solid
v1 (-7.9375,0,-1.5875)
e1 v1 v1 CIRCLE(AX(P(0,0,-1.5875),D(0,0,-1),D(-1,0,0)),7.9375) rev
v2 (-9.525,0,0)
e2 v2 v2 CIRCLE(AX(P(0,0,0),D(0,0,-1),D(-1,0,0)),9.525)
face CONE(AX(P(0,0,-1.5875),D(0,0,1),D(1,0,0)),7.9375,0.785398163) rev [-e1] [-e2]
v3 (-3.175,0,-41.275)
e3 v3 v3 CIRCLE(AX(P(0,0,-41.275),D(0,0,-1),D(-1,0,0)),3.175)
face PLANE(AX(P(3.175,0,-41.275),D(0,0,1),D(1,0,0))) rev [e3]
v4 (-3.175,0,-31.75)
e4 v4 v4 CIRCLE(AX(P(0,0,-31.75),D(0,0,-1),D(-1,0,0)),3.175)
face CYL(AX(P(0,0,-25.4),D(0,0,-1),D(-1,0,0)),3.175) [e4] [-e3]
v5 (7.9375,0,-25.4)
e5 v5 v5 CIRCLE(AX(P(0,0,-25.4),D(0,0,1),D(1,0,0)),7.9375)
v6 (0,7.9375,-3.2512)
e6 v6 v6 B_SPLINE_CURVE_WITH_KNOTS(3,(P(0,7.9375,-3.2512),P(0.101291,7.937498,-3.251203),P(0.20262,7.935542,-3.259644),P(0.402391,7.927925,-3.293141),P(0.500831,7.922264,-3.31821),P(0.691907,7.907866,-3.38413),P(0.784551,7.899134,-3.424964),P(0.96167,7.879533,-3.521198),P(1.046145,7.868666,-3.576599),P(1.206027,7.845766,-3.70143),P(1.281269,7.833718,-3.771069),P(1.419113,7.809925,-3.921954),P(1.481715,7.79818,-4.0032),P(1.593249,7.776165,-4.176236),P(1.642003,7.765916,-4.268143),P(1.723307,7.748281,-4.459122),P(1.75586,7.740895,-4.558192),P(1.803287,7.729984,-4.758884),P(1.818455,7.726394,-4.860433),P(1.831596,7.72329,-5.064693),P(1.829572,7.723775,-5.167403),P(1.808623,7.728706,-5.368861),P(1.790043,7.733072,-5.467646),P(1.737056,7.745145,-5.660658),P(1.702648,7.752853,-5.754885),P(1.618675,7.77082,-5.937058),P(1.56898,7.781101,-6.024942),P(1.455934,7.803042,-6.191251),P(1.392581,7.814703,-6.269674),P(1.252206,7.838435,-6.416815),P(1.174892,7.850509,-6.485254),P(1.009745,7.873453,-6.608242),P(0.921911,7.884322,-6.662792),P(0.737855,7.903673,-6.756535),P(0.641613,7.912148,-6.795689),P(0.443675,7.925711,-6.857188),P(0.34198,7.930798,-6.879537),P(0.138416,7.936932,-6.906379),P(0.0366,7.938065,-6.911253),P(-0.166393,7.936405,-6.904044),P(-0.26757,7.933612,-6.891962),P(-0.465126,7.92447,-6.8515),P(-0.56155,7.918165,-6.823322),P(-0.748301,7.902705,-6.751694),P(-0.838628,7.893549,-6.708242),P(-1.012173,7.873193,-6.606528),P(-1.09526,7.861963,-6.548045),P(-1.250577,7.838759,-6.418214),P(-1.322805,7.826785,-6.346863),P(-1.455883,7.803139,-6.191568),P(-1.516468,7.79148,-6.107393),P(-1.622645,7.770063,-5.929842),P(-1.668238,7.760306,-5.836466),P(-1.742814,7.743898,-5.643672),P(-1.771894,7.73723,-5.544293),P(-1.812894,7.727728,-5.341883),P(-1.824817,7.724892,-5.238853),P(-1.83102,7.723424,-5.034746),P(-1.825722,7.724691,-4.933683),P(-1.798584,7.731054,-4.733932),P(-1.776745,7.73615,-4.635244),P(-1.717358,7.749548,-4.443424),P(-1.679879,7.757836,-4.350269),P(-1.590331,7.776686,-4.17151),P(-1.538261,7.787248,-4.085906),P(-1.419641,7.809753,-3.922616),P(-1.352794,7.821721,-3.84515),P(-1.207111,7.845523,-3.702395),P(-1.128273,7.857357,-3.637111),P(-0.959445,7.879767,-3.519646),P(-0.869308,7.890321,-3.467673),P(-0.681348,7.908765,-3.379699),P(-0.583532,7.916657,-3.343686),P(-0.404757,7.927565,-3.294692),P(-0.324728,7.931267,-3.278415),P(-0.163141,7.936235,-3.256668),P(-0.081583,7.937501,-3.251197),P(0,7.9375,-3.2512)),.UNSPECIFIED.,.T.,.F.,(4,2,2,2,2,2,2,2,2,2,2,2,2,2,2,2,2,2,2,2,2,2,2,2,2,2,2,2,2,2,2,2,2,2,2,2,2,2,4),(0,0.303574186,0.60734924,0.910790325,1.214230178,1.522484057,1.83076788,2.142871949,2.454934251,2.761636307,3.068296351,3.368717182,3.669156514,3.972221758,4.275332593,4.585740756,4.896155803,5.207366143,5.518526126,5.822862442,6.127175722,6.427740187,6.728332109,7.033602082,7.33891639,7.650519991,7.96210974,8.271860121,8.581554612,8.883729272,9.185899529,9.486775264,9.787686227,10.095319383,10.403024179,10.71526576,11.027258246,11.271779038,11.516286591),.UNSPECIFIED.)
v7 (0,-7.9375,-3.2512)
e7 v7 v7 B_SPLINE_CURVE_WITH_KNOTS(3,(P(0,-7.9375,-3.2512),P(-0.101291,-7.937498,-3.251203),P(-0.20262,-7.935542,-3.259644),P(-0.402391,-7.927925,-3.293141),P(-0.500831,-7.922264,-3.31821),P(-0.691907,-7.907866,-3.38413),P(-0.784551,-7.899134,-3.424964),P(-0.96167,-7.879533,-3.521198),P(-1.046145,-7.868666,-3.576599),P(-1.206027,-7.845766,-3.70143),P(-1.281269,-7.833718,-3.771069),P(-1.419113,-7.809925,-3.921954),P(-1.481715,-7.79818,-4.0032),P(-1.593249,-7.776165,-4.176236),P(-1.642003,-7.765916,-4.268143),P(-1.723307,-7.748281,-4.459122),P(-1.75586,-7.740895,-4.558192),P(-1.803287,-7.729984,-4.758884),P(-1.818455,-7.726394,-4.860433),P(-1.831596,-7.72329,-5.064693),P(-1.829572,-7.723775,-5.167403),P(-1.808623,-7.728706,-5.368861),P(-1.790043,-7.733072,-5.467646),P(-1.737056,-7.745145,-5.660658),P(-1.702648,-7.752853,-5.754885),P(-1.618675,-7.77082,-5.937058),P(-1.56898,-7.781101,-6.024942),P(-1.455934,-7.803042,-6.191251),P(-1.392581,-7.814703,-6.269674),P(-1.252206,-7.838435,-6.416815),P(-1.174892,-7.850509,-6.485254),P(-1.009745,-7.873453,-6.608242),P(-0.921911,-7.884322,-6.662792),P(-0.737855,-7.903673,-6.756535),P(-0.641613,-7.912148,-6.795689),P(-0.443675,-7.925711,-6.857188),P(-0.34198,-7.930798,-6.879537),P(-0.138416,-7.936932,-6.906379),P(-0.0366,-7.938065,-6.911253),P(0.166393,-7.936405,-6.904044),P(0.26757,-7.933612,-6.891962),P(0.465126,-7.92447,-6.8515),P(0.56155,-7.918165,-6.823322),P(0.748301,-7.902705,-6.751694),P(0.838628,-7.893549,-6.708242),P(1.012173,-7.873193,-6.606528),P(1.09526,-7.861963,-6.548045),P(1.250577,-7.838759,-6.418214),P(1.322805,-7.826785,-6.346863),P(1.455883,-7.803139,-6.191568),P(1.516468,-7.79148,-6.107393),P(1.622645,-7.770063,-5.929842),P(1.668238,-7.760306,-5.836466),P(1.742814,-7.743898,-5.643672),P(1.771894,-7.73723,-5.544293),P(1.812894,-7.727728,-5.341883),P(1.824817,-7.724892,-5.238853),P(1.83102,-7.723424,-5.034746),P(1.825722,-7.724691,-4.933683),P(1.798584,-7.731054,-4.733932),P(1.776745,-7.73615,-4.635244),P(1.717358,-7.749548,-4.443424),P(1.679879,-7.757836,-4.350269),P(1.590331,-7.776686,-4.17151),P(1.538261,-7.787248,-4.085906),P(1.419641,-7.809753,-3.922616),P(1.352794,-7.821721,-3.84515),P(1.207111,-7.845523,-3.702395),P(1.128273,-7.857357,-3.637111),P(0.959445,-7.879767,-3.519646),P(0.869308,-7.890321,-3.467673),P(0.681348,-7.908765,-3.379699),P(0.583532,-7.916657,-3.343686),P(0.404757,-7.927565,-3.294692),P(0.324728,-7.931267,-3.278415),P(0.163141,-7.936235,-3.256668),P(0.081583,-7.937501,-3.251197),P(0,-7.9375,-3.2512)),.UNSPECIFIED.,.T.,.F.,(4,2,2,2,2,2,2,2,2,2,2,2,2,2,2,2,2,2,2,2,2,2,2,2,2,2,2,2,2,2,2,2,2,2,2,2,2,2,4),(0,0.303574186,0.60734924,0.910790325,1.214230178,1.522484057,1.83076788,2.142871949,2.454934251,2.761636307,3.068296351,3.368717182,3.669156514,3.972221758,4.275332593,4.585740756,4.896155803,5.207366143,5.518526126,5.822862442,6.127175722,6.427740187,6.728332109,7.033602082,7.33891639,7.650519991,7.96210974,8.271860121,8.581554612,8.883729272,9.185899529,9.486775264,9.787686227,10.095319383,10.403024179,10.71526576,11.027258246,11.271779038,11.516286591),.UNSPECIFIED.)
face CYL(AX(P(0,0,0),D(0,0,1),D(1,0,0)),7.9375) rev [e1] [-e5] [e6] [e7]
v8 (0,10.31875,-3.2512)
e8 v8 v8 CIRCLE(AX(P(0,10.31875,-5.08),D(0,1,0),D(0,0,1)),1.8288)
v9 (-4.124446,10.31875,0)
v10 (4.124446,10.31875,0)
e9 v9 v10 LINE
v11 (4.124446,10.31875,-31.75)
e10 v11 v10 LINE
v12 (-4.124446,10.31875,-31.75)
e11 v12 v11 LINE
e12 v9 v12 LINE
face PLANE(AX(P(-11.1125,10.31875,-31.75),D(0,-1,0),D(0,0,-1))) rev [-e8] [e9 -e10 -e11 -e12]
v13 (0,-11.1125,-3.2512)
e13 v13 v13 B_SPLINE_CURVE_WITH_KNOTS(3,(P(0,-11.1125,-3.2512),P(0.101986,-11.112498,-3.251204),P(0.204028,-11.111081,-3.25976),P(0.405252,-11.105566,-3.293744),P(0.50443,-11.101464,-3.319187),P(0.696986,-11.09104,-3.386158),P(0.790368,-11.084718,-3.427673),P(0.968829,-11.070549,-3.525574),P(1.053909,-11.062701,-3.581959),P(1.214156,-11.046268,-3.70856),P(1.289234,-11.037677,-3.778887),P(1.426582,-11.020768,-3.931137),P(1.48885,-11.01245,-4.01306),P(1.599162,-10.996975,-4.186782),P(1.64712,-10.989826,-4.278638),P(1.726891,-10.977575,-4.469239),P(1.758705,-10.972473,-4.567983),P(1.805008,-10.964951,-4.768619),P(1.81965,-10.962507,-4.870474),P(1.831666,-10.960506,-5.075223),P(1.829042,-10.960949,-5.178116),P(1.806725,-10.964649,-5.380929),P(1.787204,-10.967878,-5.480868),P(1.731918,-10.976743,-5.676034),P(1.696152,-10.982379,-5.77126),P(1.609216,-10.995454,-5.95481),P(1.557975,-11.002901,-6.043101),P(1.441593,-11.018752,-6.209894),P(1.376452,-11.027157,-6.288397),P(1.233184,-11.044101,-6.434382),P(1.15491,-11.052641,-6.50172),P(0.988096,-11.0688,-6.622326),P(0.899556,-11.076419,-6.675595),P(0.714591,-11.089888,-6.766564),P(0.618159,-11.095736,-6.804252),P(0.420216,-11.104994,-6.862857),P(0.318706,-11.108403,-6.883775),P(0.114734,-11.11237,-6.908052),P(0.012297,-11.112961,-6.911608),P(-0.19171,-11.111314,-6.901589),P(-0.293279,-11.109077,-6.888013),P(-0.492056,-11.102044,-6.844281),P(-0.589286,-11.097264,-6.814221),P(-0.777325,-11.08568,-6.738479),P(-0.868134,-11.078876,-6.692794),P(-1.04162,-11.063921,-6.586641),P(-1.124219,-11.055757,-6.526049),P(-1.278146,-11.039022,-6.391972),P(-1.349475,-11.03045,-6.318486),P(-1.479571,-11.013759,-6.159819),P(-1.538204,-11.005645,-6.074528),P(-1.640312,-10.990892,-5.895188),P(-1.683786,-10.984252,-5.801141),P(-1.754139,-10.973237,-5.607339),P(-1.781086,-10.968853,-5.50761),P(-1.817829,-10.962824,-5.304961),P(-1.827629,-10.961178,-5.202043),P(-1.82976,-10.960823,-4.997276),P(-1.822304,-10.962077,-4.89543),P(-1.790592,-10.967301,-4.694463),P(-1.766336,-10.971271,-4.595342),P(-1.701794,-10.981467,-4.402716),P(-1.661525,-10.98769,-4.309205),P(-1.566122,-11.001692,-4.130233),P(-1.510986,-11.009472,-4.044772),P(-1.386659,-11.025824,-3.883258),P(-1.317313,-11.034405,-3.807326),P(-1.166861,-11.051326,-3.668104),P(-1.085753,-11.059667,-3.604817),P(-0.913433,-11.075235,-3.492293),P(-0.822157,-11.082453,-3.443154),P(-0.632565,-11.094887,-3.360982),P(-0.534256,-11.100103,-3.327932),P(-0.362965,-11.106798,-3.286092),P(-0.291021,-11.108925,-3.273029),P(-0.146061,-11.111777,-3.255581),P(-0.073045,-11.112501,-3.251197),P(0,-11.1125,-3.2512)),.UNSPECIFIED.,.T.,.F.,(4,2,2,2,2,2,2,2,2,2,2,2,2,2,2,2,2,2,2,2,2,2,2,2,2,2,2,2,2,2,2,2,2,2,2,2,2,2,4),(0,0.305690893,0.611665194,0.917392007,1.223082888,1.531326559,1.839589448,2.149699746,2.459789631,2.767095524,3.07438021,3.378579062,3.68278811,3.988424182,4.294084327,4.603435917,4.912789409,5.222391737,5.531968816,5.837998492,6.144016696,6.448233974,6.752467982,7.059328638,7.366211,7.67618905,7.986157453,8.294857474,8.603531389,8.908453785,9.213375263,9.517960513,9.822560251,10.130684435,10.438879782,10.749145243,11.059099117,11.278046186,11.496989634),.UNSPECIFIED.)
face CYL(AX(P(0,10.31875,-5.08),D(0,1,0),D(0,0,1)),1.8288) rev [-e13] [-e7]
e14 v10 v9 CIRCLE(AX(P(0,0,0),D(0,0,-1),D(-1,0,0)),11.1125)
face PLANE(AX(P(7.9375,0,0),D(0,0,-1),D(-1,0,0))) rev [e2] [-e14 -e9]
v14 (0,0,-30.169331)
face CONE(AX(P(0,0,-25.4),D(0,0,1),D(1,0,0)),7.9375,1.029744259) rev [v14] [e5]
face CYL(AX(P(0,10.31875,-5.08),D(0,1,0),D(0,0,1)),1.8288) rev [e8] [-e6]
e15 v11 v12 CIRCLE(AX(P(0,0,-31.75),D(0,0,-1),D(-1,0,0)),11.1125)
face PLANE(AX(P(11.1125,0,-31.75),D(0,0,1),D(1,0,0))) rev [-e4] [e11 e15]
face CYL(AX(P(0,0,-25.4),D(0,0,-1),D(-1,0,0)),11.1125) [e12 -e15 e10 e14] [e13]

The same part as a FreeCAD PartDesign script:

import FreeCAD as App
import Part
import Sketcher

V = App.Vector
Q = App.Units.Quantity


def edges_at(feature, points):
    """Names of the edges that pass closest to the given points."""
    edges = feature.Shape.Edges
    near = lambda p: min(range(len(edges)), key=lambda i: edges[i].distToShape(Part.Vertex(*p))[0])
    return sorted({f"Edge{near(p) + 1}" for p in points})


def add_polygon(sketch, points):
    """Adds a closed chain of lines whose ends are joined by coincident constraints."""
    first, n = sketch.GeometryCount, len(points)
    for a, b in zip(points, points[1:] + points[:1]):
        sketch.addGeometry(Part.LineSegment(App.Vector(*a, 0), App.Vector(*b, 0)), False)
    for i in range(n):
        sketch.addConstraint(Sketcher.Constraint("Coincident", first + i, 2, first + (i + 1) % n, 1))

doc = App.newDocument("Part")
body = doc.addObject("PartDesign::Body", "Body")

# Sketch on XZ plane
sketch1 = doc.addObject("Sketcher::SketchObject", "Sketch")
body.addObject(sketch1)
sketch1.AttachmentSupport = (doc.XZ_Plane, [""])
sketch1.MapMode = "FlatFace"
add_polygon(sketch1, [(0, 0), (11.1, 0), (11.1, -31.8), (3.2, -31.8), (3.2, -41.3), (0, -41.3)])  # lines 0-5
sketch1.addConstraint([
    Sketcher.Constraint("Horizontal", 0),
    Sketcher.Constraint("Vertical", 1),
    Sketcher.Constraint("Horizontal", 2),
    Sketcher.Constraint("Vertical", 3),
    Sketcher.Constraint("Horizontal", 4),
    Sketcher.Constraint("Vertical", 5),
    Sketcher.Constraint("Coincident", 5, 2, -1, 1),
    Sketcher.Constraint("DistanceY", 1, 2, 1, 1, Q("1.25 in")),
    Sketcher.Constraint("DistanceX", 0, 1, 0, 2, Q("0.4375 in")),
    Sketcher.Constraint("DistanceX", 2, 2, 2, 1, Q("0.3125 in")),
    Sketcher.Constraint("DistanceY", 3, 2, 3, 1, Q("0.375 in")),
])
revolution = doc.addObject("PartDesign::Revolution", "Revolution")
body.addObject(revolution)
revolution.Profile = sketch1
revolution.ReferenceAxis = (sketch1, ["V_Axis"])
revolution.Angle = 360

# Sketch on XY plane
sketch2 = doc.addObject("Sketcher::SketchObject", "Sketch001")
body.addObject(sketch2)
sketch2.AttachmentSupport = (doc.XY_Plane, [""])
sketch2.MapMode = "FlatFace"
sketch2.addGeometry(Part.Circle(V(0, 0, 0), V(0, 0, 1), 8), False)
sketch2.addConstraint([
    Sketcher.Constraint("Coincident", 0, 3, -1, 1),
    Sketcher.Constraint("Diameter", 0, Q("0.625 in")),
])
doc.recompute()
hole = doc.addObject("PartDesign::Hole", "Hole")
body.addObject(hole)
hole.Profile = sketch2
hole.ThreadType = "None"
hole.Diameter = Q("0.625 in")
hole.DepthType = "Dimension"
hole.Depth = Q("1 in")
hole.DrillPoint = "Angled"
hole.DrillPointAngle = 118

# Sketch on YZ plane
sketch3 = doc.addObject("Sketcher::SketchObject", "Sketch002")
body.addObject(sketch3)
sketch3.AttachmentSupport = (doc.YZ_Plane, [""])
sketch3.MapMode = "FlatFace"
add_polygon(sketch3, [(11.1, 0), (10.3, 0), (10.3, -31.8), (11.1, -31.8)])  # lines 0-3
sketch3.addConstraint([
    Sketcher.Constraint("Horizontal", 0),
    Sketcher.Constraint("Vertical", 1),
    Sketcher.Constraint("Horizontal", 2),
    Sketcher.Constraint("Vertical", 3),
    Sketcher.Constraint("PointOnObject", 0, 2, -1),
    Sketcher.Constraint("DistanceY", 1, 2, 1, 1, Q("1.25 in")),
    Sketcher.Constraint("DistanceX", 0, 2, 0, 1, Q("0.03125 in")),
    Sketcher.Constraint("DistanceX", -1, 1, 0, 2, Q("0.40625 in")),
])
pocket1 = doc.addObject("PartDesign::Pocket", "Pocket")
body.addObject(pocket1)
pocket1.Profile = sketch3
pocket1.Type = "ThroughAll"
pocket1.Midplane = True

# Sketch on XZ plane
sketch4 = doc.addObject("Sketcher::SketchObject", "Sketch003")
body.addObject(sketch4)
sketch4.AttachmentSupport = (doc.XZ_Plane, [""])
sketch4.MapMode = "FlatFace"
sketch4.AttachmentOffset = App.Placement(V(0, 0, -0.40625 * 25.4), App.Rotation())
sketch4.addGeometry(Part.Circle(V(0, -5.1, 0), V(0, 0, 1), 1.8), False)
sketch4.addConstraint([
    Sketcher.Constraint("PointOnObject", 0, 3, -2),
    Sketcher.Constraint("Diameter", 0, Q("0.144 in")),
    Sketcher.Constraint("DistanceY", 0, 3, -1, 1, Q("0.2 in")),
])
doc.recompute()
hole2 = doc.addObject("PartDesign::Hole", "Hole001")
body.addObject(hole2)
hole2.Profile = sketch4
hole2.ThreadType = "None"
hole2.Diameter = Q("0.144 in")
hole2.DepthType = "ThroughAll"
hole2.Reversed = True
doc.recompute()

chamfer = doc.addObject("PartDesign::Chamfer", "Chamfer")
body.addObject(chamfer)
chamfer.Base = (hole2, edges_at(hole2, [(7.938, 0, 0)]))
chamfer.Size = Q("0.0625 in")

doc.recompute()
